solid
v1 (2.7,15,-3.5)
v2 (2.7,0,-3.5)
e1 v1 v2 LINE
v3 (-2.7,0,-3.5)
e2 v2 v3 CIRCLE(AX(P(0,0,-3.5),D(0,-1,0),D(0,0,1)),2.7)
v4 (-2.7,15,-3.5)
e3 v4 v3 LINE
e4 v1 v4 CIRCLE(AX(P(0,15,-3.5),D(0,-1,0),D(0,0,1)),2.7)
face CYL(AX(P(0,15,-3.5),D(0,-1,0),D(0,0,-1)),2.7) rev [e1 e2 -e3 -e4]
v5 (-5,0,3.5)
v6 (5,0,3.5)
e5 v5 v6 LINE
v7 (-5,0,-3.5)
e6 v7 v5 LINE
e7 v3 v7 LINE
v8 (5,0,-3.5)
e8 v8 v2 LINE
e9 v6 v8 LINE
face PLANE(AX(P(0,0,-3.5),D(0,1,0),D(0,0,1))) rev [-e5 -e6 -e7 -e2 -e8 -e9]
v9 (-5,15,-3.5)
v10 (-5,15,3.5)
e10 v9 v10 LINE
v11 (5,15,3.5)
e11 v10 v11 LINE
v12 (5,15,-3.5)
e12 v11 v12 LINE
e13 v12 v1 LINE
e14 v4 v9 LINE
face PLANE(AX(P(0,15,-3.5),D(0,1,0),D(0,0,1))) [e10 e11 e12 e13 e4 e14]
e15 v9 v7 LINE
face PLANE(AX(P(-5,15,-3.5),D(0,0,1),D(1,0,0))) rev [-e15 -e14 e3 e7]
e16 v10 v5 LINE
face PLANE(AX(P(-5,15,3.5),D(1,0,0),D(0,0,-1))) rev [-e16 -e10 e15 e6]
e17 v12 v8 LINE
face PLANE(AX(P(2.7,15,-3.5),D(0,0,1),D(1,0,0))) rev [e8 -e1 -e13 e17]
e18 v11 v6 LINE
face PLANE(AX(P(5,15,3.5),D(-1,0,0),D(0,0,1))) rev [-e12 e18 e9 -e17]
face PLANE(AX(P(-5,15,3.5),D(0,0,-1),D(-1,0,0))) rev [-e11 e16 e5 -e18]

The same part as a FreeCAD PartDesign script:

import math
import FreeCAD as App
import Part
import Sketcher

doc = App.newDocument("Part")
body = doc.addObject("PartDesign::Body", "Body")

# Sketch on XZ plane
sketch1 = doc.addObject("Sketcher::SketchObject", "Sketch")
body.addObject(sketch1)
sketch1.AttachmentSupport = (doc.XZ_Plane, [""])
sketch1.MapMode = "FlatFace"
sketch1.addGeometry([
    Part.LineSegment(App.Vector(5, -3.5, 0), App.Vector(2.7, -3.5, 0)),  # 0
    Part.ArcOfCircle(Part.Circle(App.Vector(0, -3.5, 0), App.Vector(0, 0, 1), 2.7), math.radians(0), math.radians(180)),  # 1
    Part.LineSegment(App.Vector(-2.7, -3.5, 0), App.Vector(-5, -3.5, 0)),  # 2
    Part.LineSegment(App.Vector(-5, -3.5, 0), App.Vector(-5, 3.5, 0)),  # 3
    Part.LineSegment(App.Vector(-5, 3.5, 0), App.Vector(5, 3.5, 0)),  # 4
    Part.LineSegment(App.Vector(5, 3.5, 0), App.Vector(5, -3.5, 0)),  # 5
], False)
sketch1.addConstraint([
    Sketcher.Constraint("Coincident", 0, 2, 1, 1),
    Sketcher.Constraint("Coincident", 1, 2, 2, 1),
    Sketcher.Constraint("Coincident", 2, 2, 3, 1),
    Sketcher.Constraint("Coincident", 3, 2, 4, 1),
    Sketcher.Constraint("Coincident", 4, 2, 5, 1),
    Sketcher.Constraint("Coincident", 5, 2, 0, 1),
    Sketcher.Constraint("Horizontal", 0),
    Sketcher.Constraint("Horizontal", 2),
    Sketcher.Constraint("Vertical", 3),
    Sketcher.Constraint("Horizontal", 4),
    Sketcher.Constraint("Vertical", 5),
    Sketcher.Constraint("Symmetric", 2, 2, 4, 2, -1, 1),
    Sketcher.Constraint("Symmetric", 0, 2, 1, 2, -2),
    Sketcher.Constraint("Horizontal", 1, 3, 0, 2),
    Sketcher.Constraint("Radius", 1, 2.7),
    Sketcher.Constraint("DistanceX", 4, 1, 4, 2, 10.0),
    Sketcher.Constraint("DistanceY", 3, 1, 3, 2, 7.0),
])
pad1 = doc.addObject("PartDesign::Pad", "Pad")
body.addObject(pad1)
pad1.Profile = sketch1
pad1.Length = 15
pad1.Reversed = True

doc.recompute()
